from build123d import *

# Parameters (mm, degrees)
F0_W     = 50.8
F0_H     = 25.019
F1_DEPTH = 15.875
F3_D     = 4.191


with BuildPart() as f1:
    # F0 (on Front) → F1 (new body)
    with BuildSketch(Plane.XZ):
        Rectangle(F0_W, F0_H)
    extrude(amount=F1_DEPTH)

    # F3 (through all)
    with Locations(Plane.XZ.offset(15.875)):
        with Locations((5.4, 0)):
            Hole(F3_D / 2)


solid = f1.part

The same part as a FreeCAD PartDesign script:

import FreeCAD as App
import Part
import Sketcher

V = App.Vector
Q = App.Units.Quantity

doc = App.newDocument("Part")
body = doc.addObject("PartDesign::Body", "Body")

sketch1 = doc.addObject("Sketcher::SketchObject", "Sketch")
body.addObject(sketch1)
sketch1.AttachmentSupport = (doc.XZ_Plane, [""])
sketch1.MapMode = "FlatFace"
sketch1.addGeometry([
    Part.LineSegment(V(-25, 13, 0), V(-25, -13, 0)),
    Part.LineSegment(V(-25, -13, 0), V(25, -13, 0)),
    Part.LineSegment(V(25, -13, 0), V(25, 13, 0)),
    Part.LineSegment(V(25, 13, 0), V(-25, 13, 0)),
], False)
sketch1.addConstraint([
    Sketcher.Constraint("Coincident", 0, 2, 1, 1),
    Sketcher.Constraint("Coincident", 1, 2, 2, 1),
    Sketcher.Constraint("Coincident", 2, 2, 3, 1),
    Sketcher.Constraint("Coincident", 3, 2, 0, 1),
    Sketcher.Constraint("Vertical", 0),
    Sketcher.Constraint("Horizontal", 1),
    Sketcher.Constraint("Vertical", 2),
    Sketcher.Constraint("Horizontal", 3),
    Sketcher.Constraint("Symmetric", 0, 2, 2, 2, -1, 1),
    Sketcher.Constraint("DistanceX", 1, 1, 1, 2, Q("2 in")),
    Sketcher.Constraint("DistanceY", 0, 2, 0, 1, Q("0.985 in")),
])
pad1 = doc.addObject("PartDesign::Pad", "Pad")
body.addObject(pad1)
pad1.Profile = sketch1
pad1.Length = Q("0.625 in")

sketch2 = doc.addObject("Sketcher::SketchObject", "Sketch001")
body.addObject(sketch2)
sketch2.AttachmentSupport = (doc.XZ_Plane, [""])
sketch2.MapMode = "FlatFace"
sketch2.AttachmentOffset = App.Placement(V(0, 0, 0.625 * 25.4), App.Rotation())
sketch2.addGeometry(Part.Circle(V(5.4, 0, 0), V(0, 0, 1), 2.1), False)
sketch2.addConstraint([
    Sketcher.Constraint("PointOnObject", 0, 3, -1),
    Sketcher.Constraint("Diameter", 0, Q("0.165 in")),
    Sketcher.Constraint("DistanceX", -1, 1, 0, 3, Q("5.4 mm")),
])
doc.recompute()
hole = doc.addObject("PartDesign::Hole", "Hole")
body.addObject(hole)
hole.Profile = sketch2
hole.ThreadType = "None"
hole.Diameter = Q("0.165 in")
hole.DepthType = "ThroughAll"

doc.recompute()
